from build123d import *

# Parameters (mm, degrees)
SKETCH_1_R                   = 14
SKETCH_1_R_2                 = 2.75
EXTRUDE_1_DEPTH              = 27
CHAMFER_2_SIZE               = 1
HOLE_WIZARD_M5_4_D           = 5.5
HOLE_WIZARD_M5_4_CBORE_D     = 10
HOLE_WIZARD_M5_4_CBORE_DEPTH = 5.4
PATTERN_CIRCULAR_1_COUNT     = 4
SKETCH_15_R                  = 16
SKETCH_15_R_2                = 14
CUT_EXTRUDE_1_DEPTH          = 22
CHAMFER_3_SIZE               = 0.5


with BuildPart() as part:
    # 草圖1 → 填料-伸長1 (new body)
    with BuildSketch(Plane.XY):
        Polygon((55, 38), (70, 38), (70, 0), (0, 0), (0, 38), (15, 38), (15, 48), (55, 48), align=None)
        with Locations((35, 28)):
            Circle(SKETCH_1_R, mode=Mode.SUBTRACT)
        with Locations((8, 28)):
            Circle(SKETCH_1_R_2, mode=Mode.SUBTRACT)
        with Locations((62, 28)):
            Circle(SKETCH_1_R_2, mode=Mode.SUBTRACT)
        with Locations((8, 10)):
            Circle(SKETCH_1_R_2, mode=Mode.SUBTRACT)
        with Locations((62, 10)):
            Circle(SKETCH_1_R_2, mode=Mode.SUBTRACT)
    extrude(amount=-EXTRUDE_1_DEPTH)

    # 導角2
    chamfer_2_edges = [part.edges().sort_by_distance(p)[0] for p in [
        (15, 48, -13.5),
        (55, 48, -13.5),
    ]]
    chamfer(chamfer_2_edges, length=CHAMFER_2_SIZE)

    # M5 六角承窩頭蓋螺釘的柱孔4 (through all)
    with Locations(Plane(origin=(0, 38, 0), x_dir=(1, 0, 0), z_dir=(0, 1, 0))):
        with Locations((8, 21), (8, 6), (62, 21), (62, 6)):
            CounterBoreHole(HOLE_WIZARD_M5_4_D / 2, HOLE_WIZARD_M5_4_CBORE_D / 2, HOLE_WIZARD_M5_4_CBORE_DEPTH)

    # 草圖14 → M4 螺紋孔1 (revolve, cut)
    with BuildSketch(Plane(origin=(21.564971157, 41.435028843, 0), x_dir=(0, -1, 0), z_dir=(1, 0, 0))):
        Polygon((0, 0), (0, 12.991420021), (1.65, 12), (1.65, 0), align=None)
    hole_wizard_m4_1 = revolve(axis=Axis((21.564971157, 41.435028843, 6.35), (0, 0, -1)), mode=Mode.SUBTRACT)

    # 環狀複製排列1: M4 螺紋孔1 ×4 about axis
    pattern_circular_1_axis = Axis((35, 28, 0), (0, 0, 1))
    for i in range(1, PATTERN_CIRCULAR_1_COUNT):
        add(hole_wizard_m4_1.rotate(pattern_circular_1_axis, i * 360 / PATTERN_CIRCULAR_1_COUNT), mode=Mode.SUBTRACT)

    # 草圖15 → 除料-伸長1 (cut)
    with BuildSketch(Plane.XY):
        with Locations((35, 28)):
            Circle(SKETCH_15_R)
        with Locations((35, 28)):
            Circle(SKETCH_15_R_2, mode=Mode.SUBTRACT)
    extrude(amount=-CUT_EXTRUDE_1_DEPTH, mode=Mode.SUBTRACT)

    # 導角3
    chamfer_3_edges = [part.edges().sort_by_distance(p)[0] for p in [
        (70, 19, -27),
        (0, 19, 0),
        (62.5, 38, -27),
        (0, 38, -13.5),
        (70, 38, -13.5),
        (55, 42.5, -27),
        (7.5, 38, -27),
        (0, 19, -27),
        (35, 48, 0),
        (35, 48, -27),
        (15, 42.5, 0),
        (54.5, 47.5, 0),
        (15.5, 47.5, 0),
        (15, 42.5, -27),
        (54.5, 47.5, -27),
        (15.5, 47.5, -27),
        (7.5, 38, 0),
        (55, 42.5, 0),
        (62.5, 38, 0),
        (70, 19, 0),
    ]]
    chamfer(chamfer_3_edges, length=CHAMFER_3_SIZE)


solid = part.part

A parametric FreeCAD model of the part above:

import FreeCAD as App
import Part
import Sketcher
from FreeCAD import Vector
Q = App.Units.Quantity


def edges_at(feature, points):
    """Names of the edges that pass closest to the given points."""
    edges = feature.Shape.Edges
    near = lambda p: min(range(len(edges)), key=lambda i: edges[i].distToShape(Part.Vertex(*p))[0])
    return sorted({f"Edge{near(p) + 1}" for p in points})

doc = App.newDocument("Part")
body = doc.addObject("PartDesign::Body", "Body")

# Sketch on XY plane
sketch1 = doc.addObject("Sketcher::SketchObject", "Sketch")
body.addObject(sketch1)
sketch1.AttachmentSupport = (doc.XY_Plane, [""])
sketch1.MapMode = "FlatFace"
sketch1.addGeometry([
    Part.LineSegment(Vector(70, 38, 0), Vector(55, 38, 0)),  # 0
    Part.LineSegment(Vector(55, 38, 0), Vector(55, 48, 0)),  # 1
    Part.LineSegment(Vector(55, 48, 0), Vector(15, 48, 0)),  # 2
    Part.LineSegment(Vector(15, 48, 0), Vector(15, 38, 0)),  # 3
    Part.LineSegment(Vector(15, 38, 0), Vector(0, 38, 0)),  # 4
    Part.LineSegment(Vector(0, 38, 0), Vector(0, 0, 0)),  # 5
    Part.LineSegment(Vector(0, 0, 0), Vector(70, 0, 0)),  # 6
    Part.LineSegment(Vector(70, 0, 0), Vector(70, 38, 0)),  # 7
    Part.Circle(Vector(62, 10, 0), Vector(0, 0, 1), 2.75),  # 8
    Part.Circle(Vector(8, 10, 0), Vector(0, 0, 1), 2.75),  # 9
    Part.Circle(Vector(62, 28, 0), Vector(0, 0, 1), 2.75),  # 10
    Part.Circle(Vector(35, 28, 0), Vector(0, 0, 1), 14),  # 11
    Part.Circle(Vector(8, 28, 0), Vector(0, 0, 1), 2.75),  # 12
], False)
sketch1.addConstraint([
    Sketcher.Constraint("Coincident", 0, 2, 1, 1),
    Sketcher.Constraint("Coincident", 1, 2, 2, 1),
    Sketcher.Constraint("Coincident", 2, 2, 3, 1),
    Sketcher.Constraint("Coincident", 3, 2, 4, 1),
    Sketcher.Constraint("Coincident", 4, 2, 5, 1),
    Sketcher.Constraint("Coincident", 5, 2, 6, 1),
    Sketcher.Constraint("Coincident", 6, 2, 7, 1),
    Sketcher.Constraint("Coincident", 7, 2, 0, 1),
    Sketcher.Constraint("Horizontal", 0),
    Sketcher.Constraint("Vertical", 1),
    Sketcher.Constraint("Horizontal", 2),
    Sketcher.Constraint("Vertical", 3),
    Sketcher.Constraint("Horizontal", 4),
    Sketcher.Constraint("Vertical", 5),
    Sketcher.Constraint("Horizontal", 6),
    Sketcher.Constraint("Vertical", 7),
    Sketcher.Constraint("Coincident", 5, 2, -1, 1),
    Sketcher.Constraint("Equal", 8, 9),
    Sketcher.Constraint("Equal", 9, 10),
    Sketcher.Constraint("Equal", 10, 12),
    Sketcher.Constraint("Horizontal", 8, 3, 9, 3),
    Sketcher.Constraint("Horizontal", 10, 3, 11, 3),
    Sketcher.Constraint("Horizontal", 11, 3, 12, 3),
    Sketcher.Constraint("Horizontal", 0, 2, 3, 2),
    Sketcher.Constraint("Vertical", 8, 3, 10, 3),
    Sketcher.Constraint("Vertical", 9, 3, 12, 3),
    Sketcher.Constraint("Equal", 0, 4),
    Sketcher.Constraint("Diameter", 11, Q("28 mm")),
    Sketcher.Constraint("Diameter", 8, Q("5.5 mm")),
    Sketcher.Constraint("DistanceX", 0, 2, 0, 1, Q("15 mm")),
    Sketcher.Constraint("DistanceX", 2, 2, 2, 1, Q("40 mm")),
    Sketcher.Constraint("DistanceY", 1, 1, 1, 2, Q("10 mm")),
    Sketcher.Constraint("DistanceY", 5, 2, 5, 1, Q("38 mm")),
    Sketcher.Constraint("DistanceX", -1, 1, 8, 3, Q("62 mm")),
    Sketcher.Constraint("DistanceY", -1, 1, 8, 3, Q("10 mm")),
    Sketcher.Constraint("DistanceX", -1, 1, 9, 3, Q("8 mm")),
    Sketcher.Constraint("DistanceY", -1, 1, 10, 3, Q("28 mm")),
    Sketcher.Constraint("DistanceX", -1, 1, 11, 3, Q("35 mm")),
])
pad1 = doc.addObject("PartDesign::Pad", "Pad")
body.addObject(pad1)
pad1.Profile = sketch1
pad1.Length = 27
pad1.Reversed = True
doc.recompute()

chamfer = doc.addObject("PartDesign::Chamfer", "Chamfer")
body.addObject(chamfer)
chamfer.Base = (pad1, edges_at(pad1, [(15, 48, -13.5), (55, 48, -13.5)]))
chamfer.Size = 1

# Sketch on XZ plane
sketch2 = doc.addObject("Sketcher::SketchObject", "Sketch001")
body.addObject(sketch2)
sketch2.AttachmentSupport = (doc.XZ_Plane, [""])
sketch2.MapMode = "FlatFace"
sketch2.AttachmentOffset = App.Placement(Vector(0, 0, -38), App.Rotation())
sketch2.addGeometry([
    Part.Circle(Vector(8, -21, 0), Vector(0, 0, 1), 2.75),
    Part.Circle(Vector(8, -6, 0), Vector(0, 0, 1), 2.75),
    Part.Circle(Vector(62, -21, 0), Vector(0, 0, 1), 2.75),
    Part.Circle(Vector(62, -6, 0), Vector(0, 0, 1), 2.75),
], False)
sketch2.addConstraint([
    Sketcher.Constraint("Equal", 0, 1),
    Sketcher.Constraint("Equal", 1, 2),
    Sketcher.Constraint("Equal", 2, 3),
    Sketcher.Constraint("Horizontal", 0, 3, 2, 3),
    Sketcher.Constraint("Horizontal", 1, 3, 3, 3),
    Sketcher.Constraint("Vertical", 0, 3, 1, 3),
    Sketcher.Constraint("Vertical", 2, 3, 3, 3),
    Sketcher.Constraint("Diameter", 0, Q("5.5 mm")),
    Sketcher.Constraint("DistanceX", -1, 1, 0, 3, Q("8 mm")),
    Sketcher.Constraint("DistanceY", 0, 3, -1, 1, Q("21 mm")),
    Sketcher.Constraint("DistanceY", 1, 3, -1, 1, Q("6 mm")),
    Sketcher.Constraint("DistanceX", -1, 1, 2, 3, Q("62 mm")),
])
doc.recompute()
hole = doc.addObject("PartDesign::Hole", "Hole")
body.addObject(hole)
hole.Profile = sketch2
hole.ThreadType = "None"
hole.Diameter = 5.5
hole.DepthType = "ThroughAll"
hole.HoleCutType = "Counterbore"
hole.HoleCutDiameter = 10
hole.HoleCutDepth = 5.4
hole.Reversed = True

# Sketch on YZ plane
sketch3 = doc.addObject("Sketcher::SketchObject", "Sketch002")
body.addObject(sketch3)
sketch3.AttachmentSupport = (doc.YZ_Plane, [""])
sketch3.MapMode = "FlatFace"
sketch3.AttachmentOffset = App.Placement(Vector(0, 0, 21.564971), App.Rotation())
sketch3.addGeometry([
    Part.LineSegment(Vector(41.435029, -12.99142, 0), Vector(41.435029, 0, 0)),
    Part.LineSegment(Vector(41.435029, 0, 0), Vector(39.785029, 0, 0)),
    Part.LineSegment(Vector(39.785029, 0, 0), Vector(39.785029, -12, 0)),
    Part.LineSegment(Vector(39.785029, -12, 0), Vector(41.435029, -12.99142, 0)),
], False)
sketch3.addGeometry(Part.LineSegment(Vector(41.435029, 0, 0), Vector(41.435029, -12.99142, 0)), True)  # axis
sketch3.addConstraint([
    Sketcher.Constraint("Coincident", 0, 2, 1, 1),
    Sketcher.Constraint("Coincident", 1, 2, 2, 1),
    Sketcher.Constraint("Coincident", 2, 2, 3, 1),
    Sketcher.Constraint("Coincident", 3, 2, 0, 1),
    Sketcher.Constraint("Vertical", 0),
    Sketcher.Constraint("Horizontal", 1),
    Sketcher.Constraint("Vertical", 2),
    Sketcher.Constraint("Vertical", 4),
    Sketcher.Constraint("Coincident", 4, 1, 0, 2),
    Sketcher.Constraint("PointOnObject", 0, 2, -1),
    Sketcher.Constraint("Equal", 0, 4),
    Sketcher.Constraint("DistanceY", 2, 2, 2, 1, Q("12 mm")),
    Sketcher.Constraint("Angle", 3, Q("-31 deg")),
    Sketcher.Constraint("DistanceX", 1, 2, 1, 1, Q("1.65 mm")),
    Sketcher.Constraint("DistanceX", -1, 1, 0, 2, Q("41.435029 mm")),
])
groove = doc.addObject("PartDesign::Groove", "Groove")
body.addObject(groove)
groove.Profile = sketch3
groove.ReferenceAxis = (sketch3, ["Axis0"])
groove.Angle = 360
doc.recompute()

datumline = doc.addObject("PartDesign::Line", "DatumLine")
body.addObject(datumline)
datumline.Placement = App.Placement(Vector(35, 28, 0), App.Rotation(Vector(0, 0, 1), Vector(0, 0, 1)))
polarpattern = doc.addObject("PartDesign::PolarPattern", "PolarPattern")
body.addObject(polarpattern)
polarpattern.Originals = [groove]
polarpattern.Axis = (datumline, [""])
polarpattern.Angle = 360
polarpattern.Occurrences = 4
body.Tip = polarpattern

# Sketch on XY plane
sketch4 = doc.addObject("Sketcher::SketchObject", "Sketch003")
body.addObject(sketch4)
sketch4.AttachmentSupport = (doc.XY_Plane, [""])
sketch4.MapMode = "FlatFace"
sketch4.addGeometry([
    Part.Circle(Vector(35, 28, 0), Vector(0, 0, 1), 16),
    Part.Circle(Vector(35, 28, 0), Vector(0, 0, 1), 14),
], False)
sketch4.addConstraint([
    Sketcher.Constraint("Coincident", 1, 3, 0, 3),
    Sketcher.Constraint("Diameter", 0, Q("32 mm")),
    Sketcher.Constraint("Diameter", 1, Q("28 mm")),
    Sketcher.Constraint("DistanceX", -1, 1, 0, 3, Q("35 mm")),
    Sketcher.Constraint("DistanceY", -1, 1, 0, 3, Q("28 mm")),
])
pocket1 = doc.addObject("PartDesign::Pocket", "Pocket")
body.addObject(pocket1)
pocket1.Profile = sketch4
pocket1.Length = 22
doc.recompute()

chamfer2 = doc.addObject("PartDesign::Chamfer", "Chamfer001")
body.addObject(chamfer2)
chamfer2.Base = (pocket1, edges_at(pocket1, [
    (70, 19, -27),
    (0, 19, 0),
    (62.5, 38, -27),
    (0, 38, -13.5),
    (70, 38, -13.5),
    (55, 42.5, -27),
    (7.5, 38, -27),
    (0, 19, -27),
    (35, 48, 0),
    (35, 48, -27),
    (15, 42.5, 0),
    (54.5, 47.5, 0),
    (15.5, 47.5, 0),
    (15, 42.5, -27),
    (54.5, 47.5, -27),
    (15.5, 47.5, -27),
    (7.5, 38, 0),
    (55, 42.5, 0),
    (62.5, 38, 0),
    (70, 19, 0),
]))
chamfer2.Size = 0.5

doc.recompute()
